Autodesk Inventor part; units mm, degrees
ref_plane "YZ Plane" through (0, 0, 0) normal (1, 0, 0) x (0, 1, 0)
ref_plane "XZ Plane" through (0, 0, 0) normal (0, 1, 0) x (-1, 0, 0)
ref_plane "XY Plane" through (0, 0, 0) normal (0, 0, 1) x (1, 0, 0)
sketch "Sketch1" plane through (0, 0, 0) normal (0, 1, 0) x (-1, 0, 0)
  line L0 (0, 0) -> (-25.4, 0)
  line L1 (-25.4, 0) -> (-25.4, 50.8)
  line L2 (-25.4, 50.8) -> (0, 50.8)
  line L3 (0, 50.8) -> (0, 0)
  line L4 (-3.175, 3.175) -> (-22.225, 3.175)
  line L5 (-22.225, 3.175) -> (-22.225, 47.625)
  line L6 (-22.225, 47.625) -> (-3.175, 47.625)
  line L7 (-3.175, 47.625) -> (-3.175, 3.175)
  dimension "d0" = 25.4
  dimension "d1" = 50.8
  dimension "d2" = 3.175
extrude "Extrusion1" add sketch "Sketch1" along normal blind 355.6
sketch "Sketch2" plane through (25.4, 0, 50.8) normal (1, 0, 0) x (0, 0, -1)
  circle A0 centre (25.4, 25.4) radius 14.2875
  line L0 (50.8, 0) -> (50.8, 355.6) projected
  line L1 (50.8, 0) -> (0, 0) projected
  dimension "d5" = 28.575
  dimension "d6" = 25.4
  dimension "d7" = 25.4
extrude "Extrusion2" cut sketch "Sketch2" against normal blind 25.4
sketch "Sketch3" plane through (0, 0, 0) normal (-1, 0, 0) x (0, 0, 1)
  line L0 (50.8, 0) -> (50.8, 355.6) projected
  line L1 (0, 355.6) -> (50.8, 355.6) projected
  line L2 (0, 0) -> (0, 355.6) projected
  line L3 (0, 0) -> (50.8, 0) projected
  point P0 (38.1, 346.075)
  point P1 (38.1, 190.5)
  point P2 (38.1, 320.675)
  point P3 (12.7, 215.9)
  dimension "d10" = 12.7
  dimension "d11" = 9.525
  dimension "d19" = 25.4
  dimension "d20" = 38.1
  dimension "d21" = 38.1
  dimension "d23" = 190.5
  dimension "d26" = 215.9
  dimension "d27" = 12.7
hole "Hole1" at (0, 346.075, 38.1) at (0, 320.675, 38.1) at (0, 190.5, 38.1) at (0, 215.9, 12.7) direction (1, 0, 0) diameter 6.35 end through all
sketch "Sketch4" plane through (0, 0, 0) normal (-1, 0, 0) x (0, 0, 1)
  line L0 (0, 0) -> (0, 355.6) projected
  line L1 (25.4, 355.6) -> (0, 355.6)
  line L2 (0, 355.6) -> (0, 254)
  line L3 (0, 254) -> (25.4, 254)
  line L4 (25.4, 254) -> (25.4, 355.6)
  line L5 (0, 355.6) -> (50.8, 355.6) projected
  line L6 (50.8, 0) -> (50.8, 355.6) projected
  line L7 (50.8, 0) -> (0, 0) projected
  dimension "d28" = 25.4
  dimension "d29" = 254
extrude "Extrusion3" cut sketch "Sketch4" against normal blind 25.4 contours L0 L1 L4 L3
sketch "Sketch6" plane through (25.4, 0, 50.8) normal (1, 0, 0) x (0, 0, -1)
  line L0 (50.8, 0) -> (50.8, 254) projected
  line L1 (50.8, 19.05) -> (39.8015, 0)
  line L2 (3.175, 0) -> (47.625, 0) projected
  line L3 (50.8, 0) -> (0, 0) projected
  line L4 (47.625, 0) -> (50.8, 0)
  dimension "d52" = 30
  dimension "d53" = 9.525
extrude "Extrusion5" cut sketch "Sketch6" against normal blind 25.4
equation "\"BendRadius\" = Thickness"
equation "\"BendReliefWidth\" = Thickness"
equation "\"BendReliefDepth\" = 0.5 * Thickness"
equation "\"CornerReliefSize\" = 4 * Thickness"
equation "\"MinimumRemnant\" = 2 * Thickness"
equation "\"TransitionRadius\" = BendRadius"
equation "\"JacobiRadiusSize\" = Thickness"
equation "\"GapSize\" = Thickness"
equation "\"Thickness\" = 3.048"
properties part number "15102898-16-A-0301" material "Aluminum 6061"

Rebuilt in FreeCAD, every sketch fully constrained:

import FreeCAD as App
import Part
import Sketcher

V = App.Vector
Q = App.Units.Quantity

doc = App.newDocument("Part")
body = doc.addObject("PartDesign::Body", "Body")

sketch1 = body.newObject("Sketcher::SketchObject", "Sketch")
sketch1.AttachmentSupport = (doc.getObject("XZ_Plane"), [""])
sketch1.MapMode = "FlatFace"
sketch1.addGeometry([
    Part.LineSegment(V(25.4, 0, 0), V(0, 0, 0)),
    Part.LineSegment(V(0, 0, 0), V(0, 50.8, 0)),
    Part.LineSegment(V(0, 50.8, 0), V(25.4, 50.8, 0)),
    Part.LineSegment(V(25.4, 50.8, 0), V(25.4, 0, 0)),
    Part.LineSegment(V(3.175, 47.625, 0), V(3.175, 3.175, 0)),
    Part.LineSegment(V(3.175, 3.175, 0), V(22.225, 3.175, 0)),
    Part.LineSegment(V(22.225, 3.175, 0), V(22.225, 47.625, 0)),
    Part.LineSegment(V(22.225, 47.625, 0), V(3.175, 47.625, 0)),
], False)
sketch1.addConstraint([
    Sketcher.Constraint("Coincident", 0, 2, 1, 1),
    Sketcher.Constraint("Coincident", 1, 2, 2, 1),
    Sketcher.Constraint("Coincident", 2, 2, 3, 1),
    Sketcher.Constraint("Coincident", 3, 2, 0, 1),
    Sketcher.Constraint("Coincident", 4, 2, 5, 1),
    Sketcher.Constraint("Coincident", 5, 2, 6, 1),
    Sketcher.Constraint("Coincident", 6, 2, 7, 1),
    Sketcher.Constraint("Coincident", 7, 2, 4, 1),
    Sketcher.Constraint("Horizontal", 0),
    Sketcher.Constraint("Vertical", 1),
    Sketcher.Constraint("Horizontal", 2),
    Sketcher.Constraint("Vertical", 3),
    Sketcher.Constraint("Vertical", 4),
    Sketcher.Constraint("Horizontal", 5),
    Sketcher.Constraint("Vertical", 6),
    Sketcher.Constraint("Horizontal", 7),
    Sketcher.Constraint("Coincident", 0, 2, -1, 1),
    Sketcher.Constraint("DistanceX", 0, 2, 0, 1, Q("1 in")),
    Sketcher.Constraint("DistanceY", 1, 1, 1, 2, Q("2 in")),
    Sketcher.Constraint("DistanceX", -1, 1, 4, 2, Q("0.125 in")),
    Sketcher.Constraint("DistanceY", -1, 1, 4, 2, Q("0.125 in")),
    Sketcher.Constraint("DistanceX", 5, 2, 3, 2, Q("0.125 in")),
    Sketcher.Constraint("DistanceY", 6, 2, 2, 2, Q("0.125 in")),
])
pad1 = body.newObject("PartDesign::Pad", "Pad")
pad1.Profile = sketch1
pad1.Length = Q("14 in")
pad1.Reversed = True

sketch2 = body.newObject("Sketcher::SketchObject", "Sketch001")
sketch2.AttachmentSupport = (doc.getObject("YZ_Plane"), [""])
sketch2.MapMode = "FlatFace"
sketch2.AttachmentOffset = App.Placement(V(0, 0, 1 * 25.4), App.Rotation())
sketch2.addGeometry(Part.Circle(V(25.4, 25.4, 0), V(0, 0, 1), 14.2875), False)
sketch2.addConstraint([
    Sketcher.Constraint("Diameter", 0, Q("1.125 in")),
    Sketcher.Constraint("DistanceX", -1, 1, 0, 3, Q("1 in")),
    Sketcher.Constraint("DistanceY", -1, 1, 0, 3, Q("1 in")),
])
pocket1 = body.newObject("PartDesign::Pocket", "Pocket")
pocket1.Profile = sketch2
pocket1.Length = Q("1 in")

sketch3 = body.newObject("Sketcher::SketchObject", "Sketch002")
sketch3.AttachmentSupport = (doc.getObject("YZ_Plane"), [""])
sketch3.MapMode = "FlatFace"
sketch3.addGeometry([
    Part.Circle(V(346.075, 38.1, 0), V(0, 0, 1), 3.175),
    Part.Circle(V(320.675, 38.1, 0), V(0, 0, 1), 3.175),
    Part.Circle(V(190.5, 38.1, 0), V(0, 0, 1), 3.175),
    Part.Circle(V(215.9, 12.7, 0), V(0, 0, 1), 3.175),
], False)
sketch3.addConstraint([
    Sketcher.Constraint("Equal", 0, 1),
    Sketcher.Constraint("Equal", 1, 2),
    Sketcher.Constraint("Equal", 2, 3),
    Sketcher.Constraint("Horizontal", 0, 3, 1, 3),
    Sketcher.Constraint("Horizontal", 1, 3, 2, 3),
    Sketcher.Constraint("Diameter", 0, Q("0.25 in")),
    Sketcher.Constraint("DistanceX", 1, 3, 0, 3, Q("1 in")),
    Sketcher.Constraint("DistanceX", 2, 3, 3, 3, Q("1 in")),
    Sketcher.Constraint("DistanceY", 3, 3, 2, 3, Q("1 in")),
    Sketcher.Constraint("DistanceY", -1, 1, 0, 3, Q("1.5 in")),
    Sketcher.Constraint("DistanceX", -1, 1, 2, 3, Q("7.5 in")),
    Sketcher.Constraint("DistanceX", -1, 1, 0, 3, Q("13.625 in")),
])
doc.recompute()
hole = body.newObject("PartDesign::Hole", "Hole")
hole.Profile = sketch3
hole.ThreadType = "None"
hole.Diameter = Q("0.25 in")
hole.DepthType = "ThroughAll"
hole.Reversed = True

sketch4 = body.newObject("Sketcher::SketchObject", "Sketch003")
sketch4.AttachmentSupport = (doc.getObject("YZ_Plane"), [""])
sketch4.MapMode = "FlatFace"
sketch4.addGeometry([
    Part.LineSegment(V(355.6, 0, 0), V(254, 0, 0)),
    Part.LineSegment(V(254, 0, 0), V(254, 25.4, 0)),
    Part.LineSegment(V(254, 25.4, 0), V(355.6, 25.4, 0)),
    Part.LineSegment(V(355.6, 25.4, 0), V(355.6, 0, 0)),
], False)
sketch4.addConstraint([
    Sketcher.Constraint("Coincident", 0, 2, 1, 1),
    Sketcher.Constraint("Coincident", 1, 2, 2, 1),
    Sketcher.Constraint("Coincident", 2, 2, 3, 1),
    Sketcher.Constraint("Coincident", 3, 2, 0, 1),
    Sketcher.Constraint("Horizontal", 0),
    Sketcher.Constraint("Vertical", 1),
    Sketcher.Constraint("Horizontal", 2),
    Sketcher.Constraint("Vertical", 3),
    Sketcher.Constraint("PointOnObject", 0, 2, -1),
    Sketcher.Constraint("DistanceY", 1, 1, 1, 2, Q("1 in")),
    Sketcher.Constraint("DistanceX", -1, 1, 0, 2, Q("10 in")),
    Sketcher.Constraint("DistanceX", 0, 2, 0, 1, Q("4 in")),
])
pocket2 = body.newObject("PartDesign::Pocket", "Pocket001")
pocket2.Profile = sketch4
pocket2.Length = Q("1 in")
pocket2.Reversed = True

sketch5 = body.newObject("Sketcher::SketchObject", "Sketch004")
sketch5.AttachmentSupport = (doc.getObject("YZ_Plane"), [""])
sketch5.MapMode = "FlatFace"
sketch5.AttachmentOffset = App.Placement(V(0, 0, 1 * 25.4), App.Rotation())
sketch5.addGeometry([
    Part.LineSegment(V(0, 10.9985, 0), V(0, 0, 0)),
    Part.LineSegment(V(0, 0, 0), V(19.05, 0, 0)),
    Part.LineSegment(V(19.05, 0, 0), V(0, 10.9985, 0)),
], False)
sketch5.addConstraint([
    Sketcher.Constraint("Coincident", 0, 2, 1, 1),
    Sketcher.Constraint("Coincident", 1, 2, 2, 1),
    Sketcher.Constraint("Coincident", 2, 2, 0, 1),
    Sketcher.Constraint("Vertical", 0),
    Sketcher.Constraint("Horizontal", 1),
    Sketcher.Constraint("Coincident", 0, 2, -1, 1),
    Sketcher.Constraint("Angle", 2, Q("150 deg")),
    Sketcher.Constraint("DistanceX", 1, 1, 1, 2, Q("0.75 in")),
])
pocket3 = body.newObject("PartDesign::Pocket", "Pocket002")
pocket3.Profile = sketch5
pocket3.Length = Q("1 in")

doc.recompute()
